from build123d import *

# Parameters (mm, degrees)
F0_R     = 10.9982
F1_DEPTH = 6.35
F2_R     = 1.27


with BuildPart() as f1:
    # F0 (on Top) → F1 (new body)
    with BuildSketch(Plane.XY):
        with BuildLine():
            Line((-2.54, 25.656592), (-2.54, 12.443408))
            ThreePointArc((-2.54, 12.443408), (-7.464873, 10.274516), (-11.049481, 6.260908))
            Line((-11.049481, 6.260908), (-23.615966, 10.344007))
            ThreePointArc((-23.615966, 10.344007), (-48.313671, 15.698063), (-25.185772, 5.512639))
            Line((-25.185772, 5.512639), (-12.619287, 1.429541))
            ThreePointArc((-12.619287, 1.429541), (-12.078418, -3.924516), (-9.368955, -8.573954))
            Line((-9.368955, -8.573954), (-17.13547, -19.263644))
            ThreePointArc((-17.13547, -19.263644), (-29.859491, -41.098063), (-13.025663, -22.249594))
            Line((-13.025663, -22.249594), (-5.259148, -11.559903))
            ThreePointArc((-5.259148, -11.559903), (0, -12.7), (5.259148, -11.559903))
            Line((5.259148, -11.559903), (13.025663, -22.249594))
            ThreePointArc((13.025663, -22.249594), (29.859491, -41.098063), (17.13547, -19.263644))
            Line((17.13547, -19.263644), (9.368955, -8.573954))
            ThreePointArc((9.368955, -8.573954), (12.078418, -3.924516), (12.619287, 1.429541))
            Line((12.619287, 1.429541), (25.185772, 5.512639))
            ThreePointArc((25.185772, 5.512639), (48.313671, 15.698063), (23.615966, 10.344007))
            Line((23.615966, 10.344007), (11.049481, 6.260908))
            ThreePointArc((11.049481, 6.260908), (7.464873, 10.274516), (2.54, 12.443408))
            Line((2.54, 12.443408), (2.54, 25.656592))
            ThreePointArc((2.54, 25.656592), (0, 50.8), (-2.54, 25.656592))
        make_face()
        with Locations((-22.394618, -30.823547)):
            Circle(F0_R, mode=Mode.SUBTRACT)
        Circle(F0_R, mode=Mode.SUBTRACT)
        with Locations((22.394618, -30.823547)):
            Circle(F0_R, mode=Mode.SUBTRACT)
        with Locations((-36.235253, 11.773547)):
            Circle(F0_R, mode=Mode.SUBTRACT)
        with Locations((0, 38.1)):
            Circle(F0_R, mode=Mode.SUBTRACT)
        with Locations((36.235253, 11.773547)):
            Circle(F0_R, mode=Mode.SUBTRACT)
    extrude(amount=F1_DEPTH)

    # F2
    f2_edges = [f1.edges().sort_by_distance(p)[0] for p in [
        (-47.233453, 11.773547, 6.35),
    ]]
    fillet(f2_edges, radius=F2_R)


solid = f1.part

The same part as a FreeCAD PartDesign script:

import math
import FreeCAD as App
import Part
import Sketcher
Q = App.Units.Quantity


def edges_at(feature, points):
    """Names of the edges that pass closest to the given points."""
    edges = feature.Shape.Edges
    near = lambda p: min(range(len(edges)), key=lambda i: edges[i].distToShape(Part.Vertex(*p))[0])
    return sorted({f"Edge{near(p) + 1}" for p in points})

doc = App.newDocument("Part")
body = doc.addObject("PartDesign::Body", "Body")

# Sketch on XY plane
sketch1 = doc.addObject("Sketcher::SketchObject", "Sketch")
body.addObject(sketch1)
sketch1.AttachmentSupport = (doc.XY_Plane, [""])
sketch1.MapMode = "FlatFace"
sketch1.addGeometry([
    Part.LineSegment(App.Vector(-2.54, 25.656592, 0), App.Vector(-2.54, 12.443408, 0)),  # 0
    Part.ArcOfCircle(Part.Circle(App.Vector(-0.000002, 0.000003, 0), App.Vector(0, 0, 1), 12.699997), math.radians(101.536954), math.radians(150.463048)),  # 1
    Part.LineSegment(App.Vector(-11.049481, 6.260908, 0), App.Vector(-23.615966, 10.344007, 0)),  # 2
    Part.ArcOfCircle(Part.Circle(App.Vector(-36.235254, 11.773546, 0), App.Vector(0, 0, 1), 12.7), math.radians(-6.463033), math.radians(330.463046)),  # 3
    Part.LineSegment(App.Vector(-25.185772, 5.512639, 0), App.Vector(-12.619287, 1.429541, 0)),  # 4
    Part.ArcOfCircle(Part.Circle(App.Vector(-0.000003, -0.000002, 0), App.Vector(0, 0, 1), 12.699996), math.radians(173.536949), math.radians(222.463045)),  # 5
    Part.LineSegment(App.Vector(-9.368955, -8.573954, 0), App.Vector(-17.13547, -19.263644, 0)),  # 6
    Part.ArcOfCircle(Part.Circle(App.Vector(-22.394619, -30.823547, 0), App.Vector(0, 0, 1), 12.7), math.radians(65.536958), math.radians(402.463035)),  # 7
    Part.LineSegment(App.Vector(-13.025663, -22.249594, 0), App.Vector(-5.259148, -11.559903, 0)),  # 8
    Part.ArcOfCircle(Part.Circle(App.Vector(0, -0.000002, 0), App.Vector(0, 0, 1), 12.699998), math.radians(-114.463043), math.radians(-65.536957)),  # 9
    Part.LineSegment(App.Vector(5.259148, -11.559903, 0), App.Vector(13.025663, -22.249594, 0)),  # 10
    Part.ArcOfCircle(Part.Circle(App.Vector(22.394619, -30.823547, 0), App.Vector(0, 0, 1), 12.7), math.radians(137.536965), math.radians(474.463042)),  # 11
    Part.LineSegment(App.Vector(17.13547, -19.263644, 0), App.Vector(9.368955, -8.573954, 0)),  # 12
    Part.ArcOfCircle(Part.Circle(App.Vector(0.000003, -0.000002, 0), App.Vector(0, 0, 1), 12.699996), math.radians(-42.463045), math.radians(6.463051)),  # 13
    Part.LineSegment(App.Vector(12.619287, 1.429541, 0), App.Vector(25.185772, 5.512639, 0)),  # 14
    Part.ArcOfCircle(Part.Circle(App.Vector(36.235254, 11.773546, 0), App.Vector(0, 0, 1), 12.7), math.radians(-150.463046), math.radians(186.463033)),  # 15
    Part.LineSegment(App.Vector(23.615966, 10.344007, 0), App.Vector(11.049481, 6.260908, 0)),  # 16
    Part.ArcOfCircle(Part.Circle(App.Vector(0.000002, 0.000003, 0), App.Vector(0, 0, 1), 12.699997), math.radians(29.536952), math.radians(78.463046)),  # 17
    Part.LineSegment(App.Vector(2.54, 12.443408, 0), App.Vector(2.54, 25.656592, 0)),  # 18
    Part.ArcOfCircle(Part.Circle(App.Vector(0, 38.1, 0), App.Vector(0, 0, 1), 12.7), math.radians(-78.463041), math.radians(258.463041)),  # 19
    Part.Circle(App.Vector(-22.394618, -30.823547, 0), App.Vector(0, 0, 1), 10.9982),  # 20
    Part.Circle(App.Vector(22.394618, -30.823547, 0), App.Vector(0, 0, 1), 10.9982),  # 21
    Part.Circle(App.Vector(0, 0, 0), App.Vector(0, 0, 1), 10.9982),  # 22
    Part.Circle(App.Vector(-36.235253, 11.773547, 0), App.Vector(0, 0, 1), 10.9982),  # 23
    Part.Circle(App.Vector(36.235253, 11.773547, 0), App.Vector(0, 0, 1), 10.9982),  # 24
    Part.Circle(App.Vector(0, 38.1, 0), App.Vector(0, 0, 1), 10.9982),  # 25
], False)
sketch1.addConstraint([
    Sketcher.Constraint("Coincident", 0, 2, 1, 1),
    Sketcher.Constraint("Coincident", 1, 2, 2, 1),
    Sketcher.Constraint("Coincident", 2, 2, 3, 1),
    Sketcher.Constraint("Coincident", 3, 2, 4, 1),
    Sketcher.Constraint("Coincident", 4, 2, 5, 1),
    Sketcher.Constraint("Coincident", 5, 2, 6, 1),
    Sketcher.Constraint("Coincident", 6, 2, 7, 1),
    Sketcher.Constraint("Coincident", 7, 2, 8, 1),
    Sketcher.Constraint("Coincident", 8, 2, 9, 1),
    Sketcher.Constraint("Coincident", 9, 2, 10, 1),
    Sketcher.Constraint("Coincident", 10, 2, 11, 1),
    Sketcher.Constraint("Coincident", 11, 2, 12, 1),
    Sketcher.Constraint("Coincident", 12, 2, 13, 1),
    Sketcher.Constraint("Coincident", 13, 2, 14, 1),
    Sketcher.Constraint("Coincident", 14, 2, 15, 1),
    Sketcher.Constraint("Coincident", 15, 2, 16, 1),
    Sketcher.Constraint("Coincident", 16, 2, 17, 1),
    Sketcher.Constraint("Coincident", 17, 2, 18, 1),
    Sketcher.Constraint("Coincident", 18, 2, 19, 1),
    Sketcher.Constraint("Coincident", 19, 2, 0, 1),
    Sketcher.Constraint("Vertical", 0),
    Sketcher.Constraint("Vertical", 18),
    Sketcher.Constraint("Coincident", 1, 3, -1, 1),
    Sketcher.Constraint("Coincident", 5, 3, -1, 1),
    Sketcher.Constraint("Coincident", 9, 3, -1, 1),
    Sketcher.Constraint("Coincident", 13, 3, -1, 1),
    Sketcher.Constraint("Coincident", 17, 3, -1, 1),
    Sketcher.Constraint("Coincident", 22, 3, -1, 1),
    Sketcher.Constraint("Coincident", 20, 3, 7, 3),
    Sketcher.Constraint("Coincident", 21, 3, 11, 3),
    Sketcher.Constraint("Coincident", 23, 3, 3, 3),
    Sketcher.Constraint("Coincident", 24, 3, 15, 3),
    Sketcher.Constraint("Coincident", 25, 3, 19, 3),
    Sketcher.Constraint("Equal", 1, 5),
    Sketcher.Constraint("Equal", 3, 7),
    Sketcher.Constraint("Equal", 5, 9),
    Sketcher.Constraint("Equal", 7, 11),
    Sketcher.Constraint("Equal", 9, 13),
    Sketcher.Constraint("Equal", 11, 15),
    Sketcher.Constraint("Equal", 13, 17),
    Sketcher.Constraint("Equal", 15, 19),
    Sketcher.Constraint("Equal", 20, 21),
    Sketcher.Constraint("Equal", 21, 22),
    Sketcher.Constraint("Equal", 22, 23),
    Sketcher.Constraint("Equal", 23, 24),
    Sketcher.Constraint("Equal", 24, 25),
    Sketcher.Constraint("Symmetric", 7, 3, 11, 3, -2),
    Sketcher.Constraint("Symmetric", 3, 3, 15, 3, -2),
    Sketcher.Constraint("Symmetric", 18, 2, 19, 2, -2),
    Sketcher.Constraint("Parallel", 2, 4),
    Sketcher.Constraint("Parallel", 6, 8),
    Sketcher.Constraint("Parallel", 10, 12),
    Sketcher.Constraint("Parallel", 14, 16),
    Sketcher.Constraint("Horizontal", 8, 2, 9, 2),
    Sketcher.Constraint("Horizontal", 7, 2, 10, 2),
    Sketcher.Constraint("Horizontal", 6, 2, 11, 2),
    Sketcher.Constraint("Horizontal", 4, 2, 13, 2),
    Sketcher.Constraint("Horizontal", 3, 2, 14, 2),
    Sketcher.Constraint("Horizontal", 2, 2, 15, 2),
    Sketcher.Constraint("Equal", 2, 4),
    Sketcher.Constraint("Equal", 4, 6),
    Sketcher.Constraint("Equal", 6, 8),
    Sketcher.Constraint("Radius", 1, Q("0.4999999 in")),
    Sketcher.Constraint("Radius", 3, Q("0.5 in")),
    Sketcher.Constraint("Diameter", 20, Q("0.866 in")),
    Sketcher.Constraint("Angle", 2, Q("161.999998 deg")),
    Sketcher.Constraint("Angle", 6, Q("-126.000002 deg")),
    Sketcher.Constraint("DistanceY", -1, 1, 19, 3, Q("1.5 in")),
    Sketcher.Constraint("DistanceX", 0, 2, -1, 1, Q("0.1 in")),
    Sketcher.Constraint("DistanceY", 1, 2, 0, 2, Q("6.1825 mm")),
    Sketcher.Constraint("DistanceY", 1, 2, 2, 2, Q("4.083099 mm")),
    Sketcher.Constraint("DistanceY", 8, 2, 5, 3, Q("11.559901 mm")),
    Sketcher.Constraint("DistanceX", 7, 3, -1, 1, Q("22.394619 mm")),
    Sketcher.Constraint("DistanceY", -1, 1, 3, 2, Q("5.512639 mm")),
])
pad1 = doc.addObject("PartDesign::Pad", "Pad")
body.addObject(pad1)
pad1.Profile = sketch1
pad1.Length = Q("0.25 in")
doc.recompute()

fillet = doc.addObject("PartDesign::Fillet", "Fillet")
body.addObject(fillet)
fillet.Base = (pad1, edges_at(pad1, [(-47.233, 11.774, 6.35)]))
fillet.Radius = Q("0.05 in")

doc.recompute()
